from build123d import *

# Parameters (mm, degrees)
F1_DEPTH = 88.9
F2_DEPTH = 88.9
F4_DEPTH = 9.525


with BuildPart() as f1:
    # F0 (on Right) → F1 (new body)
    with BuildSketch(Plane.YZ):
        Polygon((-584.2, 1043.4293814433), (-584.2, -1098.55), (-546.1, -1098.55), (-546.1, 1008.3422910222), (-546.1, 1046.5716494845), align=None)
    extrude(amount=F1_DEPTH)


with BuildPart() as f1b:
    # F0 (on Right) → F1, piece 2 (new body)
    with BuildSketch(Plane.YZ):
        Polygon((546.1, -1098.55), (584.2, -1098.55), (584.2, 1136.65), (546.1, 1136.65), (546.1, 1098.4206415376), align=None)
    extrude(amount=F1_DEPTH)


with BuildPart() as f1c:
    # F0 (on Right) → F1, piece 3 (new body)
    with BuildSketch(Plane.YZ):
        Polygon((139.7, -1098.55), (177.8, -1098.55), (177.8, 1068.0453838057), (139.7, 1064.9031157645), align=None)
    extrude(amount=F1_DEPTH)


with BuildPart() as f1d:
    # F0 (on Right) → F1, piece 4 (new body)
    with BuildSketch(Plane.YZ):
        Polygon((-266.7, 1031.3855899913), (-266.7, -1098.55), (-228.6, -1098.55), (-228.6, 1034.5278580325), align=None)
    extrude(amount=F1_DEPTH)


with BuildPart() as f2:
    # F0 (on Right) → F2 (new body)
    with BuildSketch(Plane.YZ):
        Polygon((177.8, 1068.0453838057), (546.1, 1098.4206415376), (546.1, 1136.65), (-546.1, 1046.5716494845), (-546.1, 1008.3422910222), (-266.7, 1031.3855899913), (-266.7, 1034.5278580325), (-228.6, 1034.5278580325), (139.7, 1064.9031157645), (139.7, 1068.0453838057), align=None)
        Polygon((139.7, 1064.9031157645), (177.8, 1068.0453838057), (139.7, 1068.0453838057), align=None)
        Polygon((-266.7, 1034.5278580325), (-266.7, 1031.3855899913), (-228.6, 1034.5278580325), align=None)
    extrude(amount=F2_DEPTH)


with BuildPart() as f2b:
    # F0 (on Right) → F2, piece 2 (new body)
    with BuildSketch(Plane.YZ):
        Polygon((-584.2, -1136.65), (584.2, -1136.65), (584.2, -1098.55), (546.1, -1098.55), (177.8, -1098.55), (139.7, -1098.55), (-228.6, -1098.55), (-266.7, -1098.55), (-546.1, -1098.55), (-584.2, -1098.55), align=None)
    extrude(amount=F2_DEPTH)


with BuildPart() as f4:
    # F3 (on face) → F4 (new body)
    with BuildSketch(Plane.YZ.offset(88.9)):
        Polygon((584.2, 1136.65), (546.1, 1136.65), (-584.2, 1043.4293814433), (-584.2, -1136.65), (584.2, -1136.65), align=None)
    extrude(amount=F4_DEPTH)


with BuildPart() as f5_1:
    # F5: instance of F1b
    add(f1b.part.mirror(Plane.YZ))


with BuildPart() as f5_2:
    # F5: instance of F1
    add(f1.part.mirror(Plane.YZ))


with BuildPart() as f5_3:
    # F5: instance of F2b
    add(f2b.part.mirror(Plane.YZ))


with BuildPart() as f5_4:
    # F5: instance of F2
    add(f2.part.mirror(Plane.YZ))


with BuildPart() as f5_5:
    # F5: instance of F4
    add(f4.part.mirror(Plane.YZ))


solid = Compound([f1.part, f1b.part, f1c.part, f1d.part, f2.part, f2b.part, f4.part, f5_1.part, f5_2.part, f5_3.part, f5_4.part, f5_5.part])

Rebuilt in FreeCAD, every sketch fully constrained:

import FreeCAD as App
import Part
import Sketcher
from FreeCAD import Vector
Q = App.Units.Quantity

doc = App.newDocument("Part")
params = doc.addObject("Spreadsheet::Sheet", "Params")
for row, (alias, value) in enumerate([
    ("sketch1_width", "1.5 in"),
    ("pad1_length", "3.5 in"),
    ("sketch2_height", "88 in"),
    ("sketch2_width", "1.5 in"),
    ("pad2_length", "3.5 in"),
    ("sketch3_width", "1.5 in"),
    ("pad3_length", "3.5 in"),
    ("sketch4_width", "1.5 in"),
    ("pad4_length", "3.5 in"),
    ("pad5_length", "3.5 in"),
    ("sketch6_width", "46 in"),
    ("sketch6_height", "1.5 in"),
    ("pad6_length", "3.5 in"),
    ("sketch7_width", "46 in"),
    ("sketch7_width2", "1.5 in"),
    ("sketch7_height", "89.5 in"),
    ("pad7_length", "0.375 in"),
], start=1):
    params.set(f"A{row}", alias)
    params.set(f"B{row}", "=" + value)
    params.setAlias(f"B{row}", alias)

body = doc.addObject("PartDesign::Body", "Body")

sketch1 = body.newObject("Sketcher::SketchObject", "Sketch")
sketch1.AttachmentSupport = (doc.getObject("YZ_Plane"), [""])
sketch1.MapMode = "FlatFace"
sketch1.addGeometry([
    Part.LineSegment(Vector(-584, 1043, 0), Vector(-584, -1099, 0)),
    Part.LineSegment(Vector(-584, -1099, 0), Vector(-546, -1099, 0)),
    Part.LineSegment(Vector(-546, -1099, 0), Vector(-546, 1047, 0)),
    Part.LineSegment(Vector(-546, 1047, 0), Vector(-584, 1043, 0)),
], False)
sketch1.addConstraint([
    Sketcher.Constraint("Coincident", 0, 2, 1, 1),
    Sketcher.Constraint("Coincident", 1, 2, 2, 1),
    Sketcher.Constraint("Coincident", 2, 2, 3, 1),
    Sketcher.Constraint("Coincident", 3, 2, 0, 1),
    Sketcher.Constraint("Vertical", 0),
    Sketcher.Constraint("Horizontal", 1),
    Sketcher.Constraint("Vertical", 2),
    Sketcher.Constraint("DistanceX", 1, 1, 1, 2, Q("1.5 in")),
    Sketcher.Constraint("DistanceX", 0, 2, -1, 1, Q("23 in")),
    Sketcher.Constraint("DistanceY", 0, 2, -1, 1, Q("43.25 in")),
    Sketcher.Constraint("DistanceY", 0, 2, 0, 1, Q("2141.979381 mm")),
    Sketcher.Constraint("DistanceY", 2, 1, 2, 2, Q("2145.121649 mm")),
])
sketch1.setExpression("Constraints[7]", "Params.sketch1_width")
pad1 = body.newObject("PartDesign::Pad", "Pad")
pad1.Profile = sketch1
pad1.setExpression("Length", "Params.pad1_length")
body2 = doc.addObject("PartDesign::Body", "Body001")

sketch2 = body2.newObject("Sketcher::SketchObject", "Sketch001")
sketch2.AttachmentSupport = (doc.getObject("YZ_Plane001"), [""])
sketch2.MapMode = "FlatFace"
sketch2.addGeometry([
    Part.LineSegment(Vector(546, -1099, 0), Vector(584, -1099, 0)),
    Part.LineSegment(Vector(584, -1099, 0), Vector(584, 1137, 0)),
    Part.LineSegment(Vector(584, 1137, 0), Vector(546, 1137, 0)),
    Part.LineSegment(Vector(546, 1137, 0), Vector(546, -1099, 0)),
], False)
sketch2.addConstraint([
    Sketcher.Constraint("Coincident", 0, 2, 1, 1),
    Sketcher.Constraint("Coincident", 1, 2, 2, 1),
    Sketcher.Constraint("Coincident", 2, 2, 3, 1),
    Sketcher.Constraint("Coincident", 3, 2, 0, 1),
    Sketcher.Constraint("Horizontal", 0),
    Sketcher.Constraint("Vertical", 1),
    Sketcher.Constraint("Horizontal", 2),
    Sketcher.Constraint("Vertical", 3),
    Sketcher.Constraint("DistanceY", 1, 1, 1, 2, Q("88 in")),
    Sketcher.Constraint("DistanceX", 0, 1, 0, 2, Q("1.5 in")),
    Sketcher.Constraint("DistanceX", -1, 1, 0, 2, Q("23 in")),
    Sketcher.Constraint("DistanceY", 0, 2, -1, 1, Q("43.25 in")),
])
sketch2.setExpression("Constraints[8]", "Params.sketch2_height")
sketch2.setExpression("Constraints[9]", "Params.sketch2_width")
pad2 = body2.newObject("PartDesign::Pad", "Pad001")
pad2.Profile = sketch2
pad2.setExpression("Length", "Params.pad2_length")
body3 = doc.addObject("PartDesign::Body", "Body002")

sketch3 = body3.newObject("Sketcher::SketchObject", "Sketch002")
sketch3.AttachmentSupport = (doc.getObject("YZ_Plane002"), [""])
sketch3.MapMode = "FlatFace"
sketch3.addGeometry([
    Part.LineSegment(Vector(140, -1099, 0), Vector(178, -1099, 0)),
    Part.LineSegment(Vector(178, -1099, 0), Vector(178, 1068, 0)),
    Part.LineSegment(Vector(178, 1068, 0), Vector(140, 1065, 0)),
    Part.LineSegment(Vector(140, 1065, 0), Vector(140, -1099, 0)),
], False)
sketch3.addConstraint([
    Sketcher.Constraint("Coincident", 0, 2, 1, 1),
    Sketcher.Constraint("Coincident", 1, 2, 2, 1),
    Sketcher.Constraint("Coincident", 2, 2, 3, 1),
    Sketcher.Constraint("Coincident", 3, 2, 0, 1),
    Sketcher.Constraint("Horizontal", 0),
    Sketcher.Constraint("Vertical", 1),
    Sketcher.Constraint("Vertical", 3),
    Sketcher.Constraint("DistanceX", 0, 1, 0, 2, Q("1.5 in")),
    Sketcher.Constraint("DistanceX", -1, 1, 0, 2, Q("7 in")),
    Sketcher.Constraint("DistanceY", 0, 2, -1, 1, Q("43.25 in")),
    Sketcher.Constraint("Distance", 2, Q("38.229358 mm")),
    Sketcher.Constraint("DistanceY", 1, 1, 1, 2, Q("2166.595384 mm")),
])
sketch3.setExpression("Constraints[7]", "Params.sketch3_width")
pad3 = body3.newObject("PartDesign::Pad", "Pad002")
pad3.Profile = sketch3
pad3.setExpression("Length", "Params.pad3_length")
body4 = doc.addObject("PartDesign::Body", "Body003")

sketch4 = body4.newObject("Sketcher::SketchObject", "Sketch003")
sketch4.AttachmentSupport = (doc.getObject("YZ_Plane003"), [""])
sketch4.MapMode = "FlatFace"
sketch4.addGeometry([
    Part.LineSegment(Vector(-267, 1031, 0), Vector(-267, -1099, 0)),
    Part.LineSegment(Vector(-267, -1099, 0), Vector(-229, -1099, 0)),
    Part.LineSegment(Vector(-229, -1099, 0), Vector(-229, 1035, 0)),
    Part.LineSegment(Vector(-229, 1035, 0), Vector(-267, 1031, 0)),
], False)
sketch4.addConstraint([
    Sketcher.Constraint("Coincident", 0, 2, 1, 1),
    Sketcher.Constraint("Coincident", 1, 2, 2, 1),
    Sketcher.Constraint("Coincident", 2, 2, 3, 1),
    Sketcher.Constraint("Coincident", 3, 2, 0, 1),
    Sketcher.Constraint("Vertical", 0),
    Sketcher.Constraint("Horizontal", 1),
    Sketcher.Constraint("Vertical", 2),
    Sketcher.Constraint("DistanceX", 1, 1, 1, 2, Q("1.5 in")),
    Sketcher.Constraint("DistanceX", 1, 2, -1, 1, Q("9 in")),
    Sketcher.Constraint("DistanceY", 0, 2, -1, 1, Q("43.25 in")),
    Sketcher.Constraint("DistanceY", 0, 2, 0, 1, Q("2129.93559 mm")),
    Sketcher.Constraint("DistanceY", 2, 1, 2, 2, Q("2133.077858 mm")),
])
sketch4.setExpression("Constraints[7]", "Params.sketch4_width")
pad4 = body4.newObject("PartDesign::Pad", "Pad003")
pad4.Profile = sketch4
pad4.setExpression("Length", "Params.pad4_length")
body5 = doc.addObject("PartDesign::Body", "Body004")

sketch5 = body5.newObject("Sketcher::SketchObject", "Sketch004")
sketch5.AttachmentSupport = (doc.getObject("YZ_Plane004"), [""])
sketch5.MapMode = "FlatFace"
sketch5.addGeometry([
    Part.LineSegment(Vector(546, 1098, 0), Vector(546, 1137, 0)),
    Part.LineSegment(Vector(546, 1137, 0), Vector(-546, 1047, 0)),
    Part.LineSegment(Vector(-546, 1047, 0), Vector(-546, 1008, 0)),
    Part.LineSegment(Vector(-546, 1008, 0), Vector(-267, 1031, 0)),
    Part.LineSegment(Vector(-267, 1031, 0), Vector(-229, 1035, 0)),
    Part.LineSegment(Vector(-229, 1035, 0), Vector(546, 1098, 0)),
], False)
sketch5.addConstraint([
    Sketcher.Constraint("Coincident", 0, 2, 1, 1),
    Sketcher.Constraint("Coincident", 1, 2, 2, 1),
    Sketcher.Constraint("Coincident", 2, 2, 3, 1),
    Sketcher.Constraint("Coincident", 3, 2, 4, 1),
    Sketcher.Constraint("Coincident", 4, 2, 5, 1),
    Sketcher.Constraint("Coincident", 5, 2, 0, 1),
    Sketcher.Constraint("Vertical", 0),
    Sketcher.Constraint("Vertical", 2),
    Sketcher.Constraint("Parallel", 1, 3),
    Sketcher.Constraint("Parallel", 3, 4),
    Sketcher.Constraint("Parallel", 4, 5),
    Sketcher.Constraint("DistanceX", 4, 2, -1, 1, Q("9 in")),
    Sketcher.Constraint("DistanceX", 1, 2, 0, 2, Q("43 in")),
    Sketcher.Constraint("DistanceX", 1, 2, 3, 2, Q("11 in")),
    Sketcher.Constraint("DistanceX", -1, 1, 0, 2, Q("21.5 in")),
    Sketcher.Constraint("DistanceY", -1, 1, 0, 2, Q("44.75 in")),
    Sketcher.Constraint("DistanceY", 0, 1, 0, 2, Q("38.229358 mm")),
    Sketcher.Constraint("DistanceY", 2, 2, 3, 2, Q("23.043299 mm")),
])
pad5 = body5.newObject("PartDesign::Pad", "Pad004")
pad5.Profile = sketch5
pad5.setExpression("Length", "Params.pad5_length")
body6 = doc.addObject("PartDesign::Body", "Body005")

sketch6 = body6.newObject("Sketcher::SketchObject", "Sketch005")
sketch6.AttachmentSupport = (doc.getObject("YZ_Plane005"), [""])
sketch6.MapMode = "FlatFace"
sketch6.addGeometry([
    Part.LineSegment(Vector(-584, -1137, 0), Vector(584, -1137, 0)),
    Part.LineSegment(Vector(584, -1137, 0), Vector(584, -1099, 0)),
    Part.LineSegment(Vector(584, -1099, 0), Vector(-584, -1099, 0)),
    Part.LineSegment(Vector(-584, -1099, 0), Vector(-584, -1137, 0)),
], False)
sketch6.addConstraint([
    Sketcher.Constraint("Coincident", 0, 2, 1, 1),
    Sketcher.Constraint("Coincident", 1, 2, 2, 1),
    Sketcher.Constraint("Coincident", 2, 2, 3, 1),
    Sketcher.Constraint("Coincident", 3, 2, 0, 1),
    Sketcher.Constraint("Horizontal", 0),
    Sketcher.Constraint("Vertical", 1),
    Sketcher.Constraint("Horizontal", 2),
    Sketcher.Constraint("Vertical", 3),
    Sketcher.Constraint("DistanceX", 0, 1, 0, 2, Q("46 in")),
    Sketcher.Constraint("DistanceY", 1, 1, 1, 2, Q("1.5 in")),
    Sketcher.Constraint("DistanceX", -1, 1, 0, 2, Q("23 in")),
    Sketcher.Constraint("DistanceY", 0, 2, -1, 1, Q("44.75 in")),
])
sketch6.setExpression("Constraints[8]", "Params.sketch6_width")
sketch6.setExpression("Constraints[9]", "Params.sketch6_height")
pad6 = body6.newObject("PartDesign::Pad", "Pad005")
pad6.Profile = sketch6
pad6.setExpression("Length", "Params.pad6_length")
body7 = doc.addObject("PartDesign::Body", "Body006")

sketch7 = body7.newObject("Sketcher::SketchObject", "Sketch006")
sketch7.AttachmentSupport = (doc.getObject("YZ_Plane006"), [""])
sketch7.MapMode = "FlatFace"
sketch7.AttachmentOffset = App.Placement(Vector(0, 0, 3.5 * 25.4), App.Rotation())
sketch7.addGeometry([
    Part.LineSegment(Vector(584, 1137, 0), Vector(546, 1137, 0)),
    Part.LineSegment(Vector(546, 1137, 0), Vector(-584, 1043, 0)),
    Part.LineSegment(Vector(-584, 1043, 0), Vector(-584, -1137, 0)),
    Part.LineSegment(Vector(-584, -1137, 0), Vector(584, -1137, 0)),
    Part.LineSegment(Vector(584, -1137, 0), Vector(584, 1137, 0)),
], False)
sketch7.addConstraint([
    Sketcher.Constraint("Coincident", 0, 2, 1, 1),
    Sketcher.Constraint("Coincident", 1, 2, 2, 1),
    Sketcher.Constraint("Coincident", 2, 2, 3, 1),
    Sketcher.Constraint("Coincident", 3, 2, 4, 1),
    Sketcher.Constraint("Coincident", 4, 2, 0, 1),
    Sketcher.Constraint("Horizontal", 0),
    Sketcher.Constraint("Vertical", 2),
    Sketcher.Constraint("Horizontal", 3),
    Sketcher.Constraint("Vertical", 4),
    Sketcher.Constraint("Symmetric", 2, 2, 4, 2, -1, 1),
    Sketcher.Constraint("DistanceX", 3, 1, 3, 2, Q("46 in")),
    Sketcher.Constraint("DistanceX", 0, 2, 0, 1, Q("1.5 in")),
    Sketcher.Constraint("DistanceY", 4, 1, 4, 2, Q("89.5 in")),
    Sketcher.Constraint("DistanceY", 2, 2, 2, 1, Q("2180.079381 mm")),
])
sketch7.setExpression("Constraints[10]", "Params.sketch7_width")
sketch7.setExpression("Constraints[11]", "Params.sketch7_width2")
sketch7.setExpression("Constraints[12]", "Params.sketch7_height")
pad7 = body7.newObject("PartDesign::Pad", "Pad006")
pad7.Profile = sketch7
pad7.setExpression("Length", "Params.pad7_length")
body8 = doc.addObject("PartDesign::Body", "Body007")
doc.recompute()

mirroring = doc.addObject("Part::Mirroring", "Mirroring")
mirroring.Source = body2
mirroring.Base = Vector(0, 0, 0)
mirroring.Normal = Vector(1, 0, 0)
body8.BaseFeature = mirroring
doc.recompute()
body9 = doc.addObject("PartDesign::Body", "Body008")
doc.recompute()

mirroring2 = doc.addObject("Part::Mirroring", "Mirroring001")
mirroring2.Source = body
mirroring2.Base = Vector(0, 0, 0)
mirroring2.Normal = Vector(1, 0, 0)
body9.BaseFeature = mirroring2
doc.recompute()
body10 = doc.addObject("PartDesign::Body", "Body009")
doc.recompute()

mirroring3 = doc.addObject("Part::Mirroring", "Mirroring002")
mirroring3.Source = body6
mirroring3.Base = Vector(0, 0, 0)
mirroring3.Normal = Vector(1, 0, 0)
body10.BaseFeature = mirroring3
doc.recompute()
body11 = doc.addObject("PartDesign::Body", "Body010")
doc.recompute()

mirroring4 = doc.addObject("Part::Mirroring", "Mirroring003")
mirroring4.Source = body5
mirroring4.Base = Vector(0, 0, 0)
mirroring4.Normal = Vector(1, 0, 0)
body11.BaseFeature = mirroring4
doc.recompute()
body12 = doc.addObject("PartDesign::Body", "Body011")
doc.recompute()

mirroring5 = doc.addObject("Part::Mirroring", "Mirroring004")
mirroring5.Source = body7
mirroring5.Base = Vector(0, 0, 0)
mirroring5.Normal = Vector(1, 0, 0)
body12.BaseFeature = mirroring5
doc.recompute()
mirroring.Visibility = False
mirroring2.Visibility = False
mirroring3.Visibility = False
mirroring4.Visibility = False
mirroring5.Visibility = False

doc.recompute()
